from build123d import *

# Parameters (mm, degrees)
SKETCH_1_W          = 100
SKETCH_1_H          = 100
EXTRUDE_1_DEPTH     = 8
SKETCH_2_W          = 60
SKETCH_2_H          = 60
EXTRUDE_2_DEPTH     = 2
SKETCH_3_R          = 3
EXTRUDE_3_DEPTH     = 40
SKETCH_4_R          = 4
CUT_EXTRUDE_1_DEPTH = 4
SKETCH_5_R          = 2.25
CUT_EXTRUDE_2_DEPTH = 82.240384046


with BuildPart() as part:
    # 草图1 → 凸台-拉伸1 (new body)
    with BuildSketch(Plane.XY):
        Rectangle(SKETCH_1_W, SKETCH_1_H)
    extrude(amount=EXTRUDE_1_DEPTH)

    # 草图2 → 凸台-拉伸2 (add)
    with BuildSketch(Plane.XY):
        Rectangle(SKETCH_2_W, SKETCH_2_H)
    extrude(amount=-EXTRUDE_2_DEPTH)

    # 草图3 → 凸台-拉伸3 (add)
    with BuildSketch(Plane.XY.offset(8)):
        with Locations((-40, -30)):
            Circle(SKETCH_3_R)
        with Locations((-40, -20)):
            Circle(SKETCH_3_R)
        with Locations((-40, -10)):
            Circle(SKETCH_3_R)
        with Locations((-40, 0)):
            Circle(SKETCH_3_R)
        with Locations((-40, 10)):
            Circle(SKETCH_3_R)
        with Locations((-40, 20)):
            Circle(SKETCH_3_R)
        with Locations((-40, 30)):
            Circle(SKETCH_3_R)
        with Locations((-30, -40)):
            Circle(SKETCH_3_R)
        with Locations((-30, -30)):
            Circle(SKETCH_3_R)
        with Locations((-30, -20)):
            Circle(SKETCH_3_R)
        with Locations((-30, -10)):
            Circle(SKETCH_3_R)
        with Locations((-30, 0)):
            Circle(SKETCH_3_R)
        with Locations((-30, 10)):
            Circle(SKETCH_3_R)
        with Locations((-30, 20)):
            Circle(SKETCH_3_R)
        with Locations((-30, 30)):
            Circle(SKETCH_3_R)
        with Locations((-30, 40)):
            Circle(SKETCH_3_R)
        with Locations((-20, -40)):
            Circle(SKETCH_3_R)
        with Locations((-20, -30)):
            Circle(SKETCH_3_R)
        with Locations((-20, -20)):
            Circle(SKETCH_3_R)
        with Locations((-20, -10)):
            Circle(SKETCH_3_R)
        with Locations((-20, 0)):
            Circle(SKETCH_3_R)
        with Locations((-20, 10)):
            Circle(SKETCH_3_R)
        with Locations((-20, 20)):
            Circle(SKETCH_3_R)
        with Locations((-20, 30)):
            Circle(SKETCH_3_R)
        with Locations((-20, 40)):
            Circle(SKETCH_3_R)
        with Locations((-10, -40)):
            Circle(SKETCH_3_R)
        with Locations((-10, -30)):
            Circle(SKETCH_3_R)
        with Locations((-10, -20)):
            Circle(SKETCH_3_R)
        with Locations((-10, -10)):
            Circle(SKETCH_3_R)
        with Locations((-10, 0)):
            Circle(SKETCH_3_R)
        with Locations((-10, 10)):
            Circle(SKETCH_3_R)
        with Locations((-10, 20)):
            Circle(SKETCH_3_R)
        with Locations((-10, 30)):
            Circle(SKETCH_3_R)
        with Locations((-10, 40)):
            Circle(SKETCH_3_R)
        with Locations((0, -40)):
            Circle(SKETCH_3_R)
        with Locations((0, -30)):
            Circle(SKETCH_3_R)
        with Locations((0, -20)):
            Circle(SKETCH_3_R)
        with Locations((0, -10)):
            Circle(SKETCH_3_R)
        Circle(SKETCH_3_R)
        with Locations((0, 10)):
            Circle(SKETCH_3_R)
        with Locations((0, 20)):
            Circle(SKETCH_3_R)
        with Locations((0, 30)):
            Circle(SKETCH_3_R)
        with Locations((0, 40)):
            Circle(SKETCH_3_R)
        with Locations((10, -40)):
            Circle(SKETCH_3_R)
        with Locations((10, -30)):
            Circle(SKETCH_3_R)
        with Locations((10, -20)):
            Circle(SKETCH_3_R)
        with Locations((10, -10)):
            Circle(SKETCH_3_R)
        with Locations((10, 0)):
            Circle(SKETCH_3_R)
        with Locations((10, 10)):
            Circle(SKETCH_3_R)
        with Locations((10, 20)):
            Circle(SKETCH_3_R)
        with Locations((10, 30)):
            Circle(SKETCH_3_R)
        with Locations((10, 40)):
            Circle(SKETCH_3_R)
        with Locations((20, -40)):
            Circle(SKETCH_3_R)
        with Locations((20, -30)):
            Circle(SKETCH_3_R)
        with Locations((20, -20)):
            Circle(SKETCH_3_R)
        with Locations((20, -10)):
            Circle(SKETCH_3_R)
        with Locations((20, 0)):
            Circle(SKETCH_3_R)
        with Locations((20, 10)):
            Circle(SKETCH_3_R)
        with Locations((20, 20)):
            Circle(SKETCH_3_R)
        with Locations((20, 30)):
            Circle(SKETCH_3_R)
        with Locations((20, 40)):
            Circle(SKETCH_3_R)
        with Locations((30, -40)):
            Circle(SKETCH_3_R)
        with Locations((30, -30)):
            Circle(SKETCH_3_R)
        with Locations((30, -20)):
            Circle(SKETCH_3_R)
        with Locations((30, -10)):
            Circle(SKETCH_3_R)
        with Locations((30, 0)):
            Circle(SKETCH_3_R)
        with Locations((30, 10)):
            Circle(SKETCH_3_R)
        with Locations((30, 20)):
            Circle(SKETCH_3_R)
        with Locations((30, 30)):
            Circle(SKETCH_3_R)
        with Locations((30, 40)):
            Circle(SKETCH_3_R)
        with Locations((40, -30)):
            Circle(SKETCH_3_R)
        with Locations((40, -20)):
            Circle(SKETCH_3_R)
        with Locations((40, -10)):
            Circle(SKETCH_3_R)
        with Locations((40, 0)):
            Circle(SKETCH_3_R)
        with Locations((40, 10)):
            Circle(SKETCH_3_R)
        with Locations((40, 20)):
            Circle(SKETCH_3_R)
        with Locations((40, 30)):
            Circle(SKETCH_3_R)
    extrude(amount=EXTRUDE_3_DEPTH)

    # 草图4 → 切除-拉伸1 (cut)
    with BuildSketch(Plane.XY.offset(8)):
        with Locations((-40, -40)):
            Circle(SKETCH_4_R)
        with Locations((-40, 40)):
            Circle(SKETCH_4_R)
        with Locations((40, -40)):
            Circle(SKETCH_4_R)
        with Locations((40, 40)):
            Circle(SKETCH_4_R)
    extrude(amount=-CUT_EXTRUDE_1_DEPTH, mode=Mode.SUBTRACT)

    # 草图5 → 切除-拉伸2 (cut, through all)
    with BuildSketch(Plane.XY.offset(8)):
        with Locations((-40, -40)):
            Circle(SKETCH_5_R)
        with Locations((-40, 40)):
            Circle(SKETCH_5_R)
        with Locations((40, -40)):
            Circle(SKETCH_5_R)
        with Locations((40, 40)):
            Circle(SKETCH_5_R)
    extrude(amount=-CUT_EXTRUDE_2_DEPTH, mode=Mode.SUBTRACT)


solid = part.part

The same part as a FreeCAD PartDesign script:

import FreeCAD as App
import Part
import Sketcher

V = App.Vector
Q = App.Units.Quantity

doc = App.newDocument("Part")
body = doc.addObject("PartDesign::Body", "Body")

# Sketch on XY plane
sketch1 = doc.addObject("Sketcher::SketchObject", "Sketch")
body.addObject(sketch1)
sketch1.AttachmentSupport = (doc.XY_Plane, [""])
sketch1.MapMode = "FlatFace"
sketch1.addGeometry([
    Part.LineSegment(V(-50, 50, 0), V(-50, -50, 0)),
    Part.LineSegment(V(-50, -50, 0), V(50, -50, 0)),
    Part.LineSegment(V(50, -50, 0), V(50, 50, 0)),
    Part.LineSegment(V(50, 50, 0), V(-50, 50, 0)),
], False)
sketch1.addConstraint([
    Sketcher.Constraint("Coincident", 0, 2, 1, 1),
    Sketcher.Constraint("Coincident", 1, 2, 2, 1),
    Sketcher.Constraint("Coincident", 2, 2, 3, 1),
    Sketcher.Constraint("Coincident", 3, 2, 0, 1),
    Sketcher.Constraint("Vertical", 0),
    Sketcher.Constraint("Horizontal", 1),
    Sketcher.Constraint("Vertical", 2),
    Sketcher.Constraint("Horizontal", 3),
    Sketcher.Constraint("Symmetric", 0, 2, 2, 2, -1, 1),
    Sketcher.Constraint("Equal", 3, 0),
    Sketcher.Constraint("DistanceX", 1, 1, 1, 2, Q("100 mm")),
])
pad1 = doc.addObject("PartDesign::Pad", "Pad")
body.addObject(pad1)
pad1.Profile = sketch1
pad1.Length = 8

# Sketch on XY plane
sketch2 = doc.addObject("Sketcher::SketchObject", "Sketch001")
body.addObject(sketch2)
sketch2.AttachmentSupport = (doc.XY_Plane, [""])
sketch2.MapMode = "FlatFace"
sketch2.addGeometry([
    Part.LineSegment(V(-30, 30, 0), V(-30, -30, 0)),
    Part.LineSegment(V(-30, -30, 0), V(30, -30, 0)),
    Part.LineSegment(V(30, -30, 0), V(30, 30, 0)),
    Part.LineSegment(V(30, 30, 0), V(-30, 30, 0)),
], False)
sketch2.addConstraint([
    Sketcher.Constraint("Coincident", 0, 2, 1, 1),
    Sketcher.Constraint("Coincident", 1, 2, 2, 1),
    Sketcher.Constraint("Coincident", 2, 2, 3, 1),
    Sketcher.Constraint("Coincident", 3, 2, 0, 1),
    Sketcher.Constraint("Vertical", 0),
    Sketcher.Constraint("Horizontal", 1),
    Sketcher.Constraint("Vertical", 2),
    Sketcher.Constraint("Horizontal", 3),
    Sketcher.Constraint("Symmetric", 0, 2, 2, 2, -1, 1),
    Sketcher.Constraint("Equal", 3, 0),
    Sketcher.Constraint("DistanceX", 1, 1, 1, 2, Q("60 mm")),
])
pad2 = doc.addObject("PartDesign::Pad", "Pad001")
body.addObject(pad2)
pad2.Profile = sketch2
pad2.Length = 2
pad2.Reversed = True

# Sketch on XY plane
sketch3 = doc.addObject("Sketcher::SketchObject", "Sketch002")
body.addObject(sketch3)
sketch3.AttachmentSupport = (doc.XY_Plane, [""])
sketch3.MapMode = "FlatFace"
sketch3.AttachmentOffset = App.Placement(V(0, 0, 8), App.Rotation())
sketch3.addGeometry([
    Part.Circle(V(-40, -30, 0), V(0, 0, 1), 3),  # 0
    Part.Circle(V(-40, -20, 0), V(0, 0, 1), 3),  # 1
    Part.Circle(V(-40, -10, 0), V(0, 0, 1), 3),  # 2
    Part.Circle(V(-40, 0, 0), V(0, 0, 1), 3),  # 3
    Part.Circle(V(-40, 10, 0), V(0, 0, 1), 3),  # 4
    Part.Circle(V(-40, 20, 0), V(0, 0, 1), 3),  # 5
    Part.Circle(V(-40, 30, 0), V(0, 0, 1), 3),  # 6
    Part.Circle(V(-30, -40, 0), V(0, 0, 1), 3),  # 7
    Part.Circle(V(-30, -30, 0), V(0, 0, 1), 3),  # 8
    Part.Circle(V(-30, -20, 0), V(0, 0, 1), 3),  # 9
    Part.Circle(V(-30, -10, 0), V(0, 0, 1), 3),  # 10
    Part.Circle(V(-30, 0, 0), V(0, 0, 1), 3),  # 11
    Part.Circle(V(-30, 10, 0), V(0, 0, 1), 3),  # 12
    Part.Circle(V(-30, 20, 0), V(0, 0, 1), 3),  # 13
    Part.Circle(V(-30, 30, 0), V(0, 0, 1), 3),  # 14
    Part.Circle(V(-30, 40, 0), V(0, 0, 1), 3),  # 15
    Part.Circle(V(-20, -40, 0), V(0, 0, 1), 3),  # 16
    Part.Circle(V(-20, -30, 0), V(0, 0, 1), 3),  # 17
    Part.Circle(V(-20, -20, 0), V(0, 0, 1), 3),  # 18
    Part.Circle(V(-20, -10, 0), V(0, 0, 1), 3),  # 19
    Part.Circle(V(-20, 0, 0), V(0, 0, 1), 3),  # 20
    Part.Circle(V(-20, 10, 0), V(0, 0, 1), 3),  # 21
    Part.Circle(V(-20, 20, 0), V(0, 0, 1), 3),  # 22
    Part.Circle(V(-20, 30, 0), V(0, 0, 1), 3),  # 23
    Part.Circle(V(-20, 40, 0), V(0, 0, 1), 3),  # 24
    Part.Circle(V(-10, -40, 0), V(0, 0, 1), 3),  # 25
    Part.Circle(V(-10, -30, 0), V(0, 0, 1), 3),  # 26
    Part.Circle(V(-10, -20, 0), V(0, 0, 1), 3),  # 27
    Part.Circle(V(-10, -10, 0), V(0, 0, 1), 3),  # 28
    Part.Circle(V(-10, 0, 0), V(0, 0, 1), 3),  # 29
    Part.Circle(V(-10, 10, 0), V(0, 0, 1), 3),  # 30
    Part.Circle(V(-10, 20, 0), V(0, 0, 1), 3),  # 31
    Part.Circle(V(-10, 30, 0), V(0, 0, 1), 3),  # 32
    Part.Circle(V(-10, 40, 0), V(0, 0, 1), 3),  # 33
    Part.Circle(V(0, -40, 0), V(0, 0, 1), 3),  # 34
    Part.Circle(V(0, -30, 0), V(0, 0, 1), 3),  # 35
    Part.Circle(V(0, -20, 0), V(0, 0, 1), 3),  # 36
    Part.Circle(V(0, -10, 0), V(0, 0, 1), 3),  # 37
    Part.Circle(V(0, 0, 0), V(0, 0, 1), 3),  # 38
    Part.Circle(V(0, 10, 0), V(0, 0, 1), 3),  # 39
    Part.Circle(V(0, 20, 0), V(0, 0, 1), 3),  # 40
    Part.Circle(V(0, 30, 0), V(0, 0, 1), 3),  # 41
    Part.Circle(V(0, 40, 0), V(0, 0, 1), 3),  # 42
    Part.Circle(V(10, -40, 0), V(0, 0, 1), 3),  # 43
    Part.Circle(V(10, -30, 0), V(0, 0, 1), 3),  # 44
    Part.Circle(V(10, -20, 0), V(0, 0, 1), 3),  # 45
    Part.Circle(V(10, -10, 0), V(0, 0, 1), 3),  # 46
    Part.Circle(V(10, 0, 0), V(0, 0, 1), 3),  # 47
    Part.Circle(V(10, 10, 0), V(0, 0, 1), 3),  # 48
    Part.Circle(V(10, 20, 0), V(0, 0, 1), 3),  # 49
    Part.Circle(V(10, 30, 0), V(0, 0, 1), 3),  # 50
    Part.Circle(V(10, 40, 0), V(0, 0, 1), 3),  # 51
    Part.Circle(V(20, -40, 0), V(0, 0, 1), 3),  # 52
    Part.Circle(V(20, -30, 0), V(0, 0, 1), 3),  # 53
    Part.Circle(V(20, -20, 0), V(0, 0, 1), 3),  # 54
    Part.Circle(V(20, -10, 0), V(0, 0, 1), 3),  # 55
    Part.Circle(V(20, 0, 0), V(0, 0, 1), 3),  # 56
    Part.Circle(V(20, 10, 0), V(0, 0, 1), 3),  # 57
    Part.Circle(V(20, 20, 0), V(0, 0, 1), 3),  # 58
    Part.Circle(V(20, 30, 0), V(0, 0, 1), 3),  # 59
    Part.Circle(V(20, 40, 0), V(0, 0, 1), 3),  # 60
    Part.Circle(V(30, -40, 0), V(0, 0, 1), 3),  # 61
    Part.Circle(V(30, -30, 0), V(0, 0, 1), 3),  # 62
    Part.Circle(V(30, -20, 0), V(0, 0, 1), 3),  # 63
    Part.Circle(V(30, -10, 0), V(0, 0, 1), 3),  # 64
    Part.Circle(V(30, 0, 0), V(0, 0, 1), 3),  # 65
    Part.Circle(V(30, 10, 0), V(0, 0, 1), 3),  # 66
    Part.Circle(V(30, 20, 0), V(0, 0, 1), 3),  # 67
    Part.Circle(V(30, 30, 0), V(0, 0, 1), 3),  # 68
    Part.Circle(V(30, 40, 0), V(0, 0, 1), 3),  # 69
    Part.Circle(V(40, -30, 0), V(0, 0, 1), 3),  # 70
    Part.Circle(V(40, -20, 0), V(0, 0, 1), 3),  # 71
    Part.Circle(V(40, -10, 0), V(0, 0, 1), 3),  # 72
    Part.Circle(V(40, 0, 0), V(0, 0, 1), 3),  # 73
    Part.Circle(V(40, 10, 0), V(0, 0, 1), 3),  # 74
    Part.Circle(V(40, 20, 0), V(0, 0, 1), 3),  # 75
    Part.Circle(V(40, 30, 0), V(0, 0, 1), 3),  # 76
], False)
sketch3.addConstraint([
    Sketcher.Constraint("Coincident", 38, 3, -1, 1),
    Sketcher.Constraint("Equal", 0, 1),
    Sketcher.Constraint("Equal", 1, 2),
    Sketcher.Constraint("Equal", 2, 3),
    Sketcher.Constraint("Equal", 3, 4),
    Sketcher.Constraint("Equal", 4, 5),
    Sketcher.Constraint("Equal", 5, 6),
    Sketcher.Constraint("Equal", 6, 7),
    Sketcher.Constraint("Equal", 7, 8),
    Sketcher.Constraint("Equal", 8, 9),
    Sketcher.Constraint("Equal", 9, 10),
    Sketcher.Constraint("Equal", 10, 11),
    Sketcher.Constraint("Equal", 11, 12),
    Sketcher.Constraint("Equal", 12, 13),
    Sketcher.Constraint("Equal", 13, 14),
    Sketcher.Constraint("Equal", 14, 15),
    Sketcher.Constraint("Equal", 15, 16),
    Sketcher.Constraint("Equal", 16, 17),
    Sketcher.Constraint("Equal", 17, 18),
    Sketcher.Constraint("Equal", 18, 19),
    Sketcher.Constraint("Equal", 19, 20),
    Sketcher.Constraint("Equal", 20, 21),
    Sketcher.Constraint("Equal", 21, 22),
    Sketcher.Constraint("Equal", 22, 23),
    Sketcher.Constraint("Equal", 23, 24),
    Sketcher.Constraint("Equal", 24, 25),
    Sketcher.Constraint("Equal", 25, 26),
    Sketcher.Constraint("Equal", 26, 27),
    Sketcher.Constraint("Equal", 27, 28),
    Sketcher.Constraint("Equal", 28, 29),
    Sketcher.Constraint("Equal", 29, 30),
    Sketcher.Constraint("Equal", 30, 31),
    Sketcher.Constraint("Equal", 31, 32),
    Sketcher.Constraint("Equal", 32, 33),
    Sketcher.Constraint("Equal", 33, 34),
    Sketcher.Constraint("Equal", 34, 35),
    Sketcher.Constraint("Equal", 35, 36),
    Sketcher.Constraint("Equal", 36, 37),
    Sketcher.Constraint("Equal", 37, 38),
    Sketcher.Constraint("Equal", 38, 39),
    Sketcher.Constraint("Equal", 39, 40),
    Sketcher.Constraint("Equal", 40, 41),
    Sketcher.Constraint("Equal", 41, 42),
    Sketcher.Constraint("Equal", 42, 43),
    Sketcher.Constraint("Equal", 43, 44),
    Sketcher.Constraint("Equal", 44, 45),
    Sketcher.Constraint("Equal", 45, 46),
    Sketcher.Constraint("Equal", 46, 47),
    Sketcher.Constraint("Equal", 47, 48),
    Sketcher.Constraint("Equal", 48, 49),
    Sketcher.Constraint("Equal", 49, 50),
    Sketcher.Constraint("Equal", 50, 51),
    Sketcher.Constraint("Equal", 51, 52),
    Sketcher.Constraint("Equal", 52, 53),
    Sketcher.Constraint("Equal", 53, 54),
    Sketcher.Constraint("Equal", 54, 55),
    Sketcher.Constraint("Equal", 55, 56),
    Sketcher.Constraint("Equal", 56, 57),
    Sketcher.Constraint("Equal", 57, 58),
    Sketcher.Constraint("Equal", 58, 59),
    Sketcher.Constraint("Equal", 59, 60),
    Sketcher.Constraint("Equal", 60, 61),
    Sketcher.Constraint("Equal", 61, 62),
    Sketcher.Constraint("Equal", 62, 63),
    Sketcher.Constraint("Equal", 63, 64),
    Sketcher.Constraint("Equal", 64, 65),
    Sketcher.Constraint("Equal", 65, 66),
    Sketcher.Constraint("Equal", 66, 67),
    Sketcher.Constraint("Equal", 67, 68),
    Sketcher.Constraint("Equal", 68, 69),
    Sketcher.Constraint("Equal", 69, 70),
    Sketcher.Constraint("Equal", 70, 71),
    Sketcher.Constraint("Equal", 71, 72),
    Sketcher.Constraint("Equal", 72, 73),
    Sketcher.Constraint("Equal", 73, 74),
    Sketcher.Constraint("Equal", 74, 75),
    Sketcher.Constraint("Equal", 75, 76),
    Sketcher.Constraint("Symmetric", 37, 3, 39, 3, -1, 1),
    Sketcher.Constraint("Symmetric", 36, 3, 40, 3, -1, 1),
    Sketcher.Constraint("Symmetric", 35, 3, 41, 3, -1, 1),
    Sketcher.Constraint("Symmetric", 34, 3, 42, 3, -1, 1),
    Sketcher.Constraint("Symmetric", 33, 3, 43, 3, -1, 1),
    Sketcher.Constraint("Symmetric", 32, 3, 44, 3, -1, 1),
    Sketcher.Constraint("Symmetric", 31, 3, 45, 3, -1, 1),
    Sketcher.Constraint("Symmetric", 30, 3, 46, 3, -1, 1),
    Sketcher.Constraint("Symmetric", 29, 3, 47, 3, -1, 1),
    Sketcher.Constraint("Symmetric", 28, 3, 48, 3, -1, 1),
    Sketcher.Constraint("Symmetric", 27, 3, 49, 3, -1, 1),
    Sketcher.Constraint("Symmetric", 26, 3, 50, 3, -1, 1),
    Sketcher.Constraint("Symmetric", 25, 3, 51, 3, -1, 1),
    Sketcher.Constraint("Symmetric", 24, 3, 52, 3, -1, 1),
    Sketcher.Constraint("Symmetric", 23, 3, 53, 3, -1, 1),
    Sketcher.Constraint("Symmetric", 22, 3, 54, 3, -1, 1),
    Sketcher.Constraint("Symmetric", 21, 3, 55, 3, -1, 1),
    Sketcher.Constraint("Symmetric", 20, 3, 56, 3, -1, 1),
    Sketcher.Constraint("Symmetric", 19, 3, 57, 3, -1, 1),
    Sketcher.Constraint("Symmetric", 18, 3, 58, 3, -1, 1),
    Sketcher.Constraint("Symmetric", 17, 3, 59, 3, -1, 1),
    Sketcher.Constraint("Symmetric", 16, 3, 60, 3, -1, 1),
    Sketcher.Constraint("Symmetric", 15, 3, 61, 3, -1, 1),
    Sketcher.Constraint("Symmetric", 14, 3, 62, 3, -1, 1),
    Sketcher.Constraint("Symmetric", 13, 3, 63, 3, -1, 1),
    Sketcher.Constraint("Symmetric", 12, 3, 64, 3, -1, 1),
    Sketcher.Constraint("Symmetric", 11, 3, 65, 3, -1, 1),
    Sketcher.Constraint("Symmetric", 10, 3, 66, 3, -1, 1),
    Sketcher.Constraint("Symmetric", 9, 3, 67, 3, -1, 1),
    Sketcher.Constraint("Symmetric", 8, 3, 68, 3, -1, 1),
    Sketcher.Constraint("Symmetric", 7, 3, 69, 3, -1, 1),
    Sketcher.Constraint("Symmetric", 6, 3, 70, 3, -1, 1),
    Sketcher.Constraint("Symmetric", 5, 3, 71, 3, -1, 1),
    Sketcher.Constraint("Symmetric", 4, 3, 72, 3, -1, 1),
    Sketcher.Constraint("Symmetric", 3, 3, 73, 3, -1, 1),
    Sketcher.Constraint("Symmetric", 2, 3, 74, 3, -1, 1),
    Sketcher.Constraint("Symmetric", 1, 3, 75, 3, -1, 1),
    Sketcher.Constraint("Symmetric", 0, 3, 76, 3, -1, 1),
    Sketcher.Constraint("Symmetric", 25, 3, 43, 3, -2),
    Sketcher.Constraint("Symmetric", 26, 3, 44, 3, -2),
    Sketcher.Constraint("Symmetric", 27, 3, 45, 3, -2),
    Sketcher.Constraint("Symmetric", 28, 3, 46, 3, -2),
    Sketcher.Constraint("Symmetric", 16, 3, 52, 3, -2),
    Sketcher.Constraint("Symmetric", 17, 3, 53, 3, -2),
    Sketcher.Constraint("Symmetric", 18, 3, 54, 3, -2),
    Sketcher.Constraint("Symmetric", 19, 3, 55, 3, -2),
    Sketcher.Constraint("Symmetric", 7, 3, 61, 3, -2),
    Sketcher.Constraint("Symmetric", 8, 3, 62, 3, -2),
    Sketcher.Constraint("Symmetric", 9, 3, 63, 3, -2),
    Sketcher.Constraint("Symmetric", 10, 3, 64, 3, -2),
    Sketcher.Constraint("Symmetric", 0, 3, 70, 3, -2),
    Sketcher.Constraint("Symmetric", 1, 3, 71, 3, -2),
    Sketcher.Constraint("Symmetric", 2, 3, 72, 3, -2),
    Sketcher.Constraint("PointOnObject", 3, 3, -1),
    Sketcher.Constraint("PointOnObject", 11, 3, -1),
    Sketcher.Constraint("PointOnObject", 20, 3, -1),
    Sketcher.Constraint("PointOnObject", 29, 3, -1),
    Sketcher.Constraint("PointOnObject", 34, 3, -2),
    Sketcher.Constraint("PointOnObject", 35, 3, -2),
    Sketcher.Constraint("PointOnObject", 36, 3, -2),
    Sketcher.Constraint("PointOnObject", 37, 3, -2),
    Sketcher.Constraint("Horizontal", 0, 3, 8, 3),
    Sketcher.Constraint("Horizontal", 1, 3, 9, 3),
    Sketcher.Constraint("Horizontal", 2, 3, 10, 3),
    Sketcher.Constraint("Horizontal", 7, 3, 16, 3),
    Sketcher.Constraint("Horizontal", 8, 3, 17, 3),
    Sketcher.Constraint("Horizontal", 9, 3, 18, 3),
    Sketcher.Constraint("Horizontal", 10, 3, 19, 3),
    Sketcher.Constraint("Horizontal", 16, 3, 25, 3),
    Sketcher.Constraint("Horizontal", 17, 3, 26, 3),
    Sketcher.Constraint("Horizontal", 18, 3, 27, 3),
    Sketcher.Constraint("Horizontal", 19, 3, 28, 3),
    Sketcher.Constraint("Horizontal", 25, 3, 34, 3),
    Sketcher.Constraint("Horizontal", 26, 3, 35, 3),
    Sketcher.Constraint("Horizontal", 27, 3, 36, 3),
    Sketcher.Constraint("Horizontal", 28, 3, 37, 3),
    Sketcher.Constraint("Vertical", 0, 3, 1, 3),
    Sketcher.Constraint("Vertical", 1, 3, 2, 3),
    Sketcher.Constraint("Vertical", 2, 3, 3, 3),
    Sketcher.Constraint("Vertical", 7, 3, 8, 3),
    Sketcher.Constraint("Vertical", 8, 3, 9, 3),
    Sketcher.Constraint("Vertical", 9, 3, 10, 3),
    Sketcher.Constraint("Vertical", 10, 3, 11, 3),
    Sketcher.Constraint("Vertical", 16, 3, 17, 3),
    Sketcher.Constraint("Vertical", 17, 3, 18, 3),
    Sketcher.Constraint("Vertical", 18, 3, 19, 3),
    Sketcher.Constraint("Vertical", 19, 3, 20, 3),
    Sketcher.Constraint("Vertical", 25, 3, 26, 3),
    Sketcher.Constraint("Vertical", 26, 3, 27, 3),
    Sketcher.Constraint("Vertical", 27, 3, 28, 3),
    Sketcher.Constraint("Vertical", 28, 3, 29, 3),
    Sketcher.Constraint("Diameter", 0, Q("6 mm")),
    Sketcher.Constraint("DistanceX", 0, 3, -1, 1, Q("40 mm")),
    Sketcher.Constraint("DistanceY", 0, 3, -1, 1, Q("30 mm")),
    Sketcher.Constraint("DistanceY", 1, 3, -1, 1, Q("20 mm")),
    Sketcher.Constraint("DistanceY", 2, 3, -1, 1, Q("10 mm")),
    Sketcher.Constraint("DistanceX", 7, 3, -1, 1, Q("30 mm")),
    Sketcher.Constraint("DistanceY", 7, 3, -1, 1, Q("40 mm")),
    Sketcher.Constraint("DistanceX", 16, 3, -1, 1, Q("20 mm")),
    Sketcher.Constraint("DistanceX", 25, 3, -1, 1, Q("10 mm")),
])
pad3 = doc.addObject("PartDesign::Pad", "Pad002")
body.addObject(pad3)
pad3.Profile = sketch3
pad3.Length = 40

# Sketch on XY plane
sketch4 = doc.addObject("Sketcher::SketchObject", "Sketch003")
body.addObject(sketch4)
sketch4.AttachmentSupport = (doc.XY_Plane, [""])
sketch4.MapMode = "FlatFace"
sketch4.AttachmentOffset = App.Placement(V(0, 0, 8), App.Rotation())
sketch4.addGeometry([
    Part.Circle(V(-40, -40, 0), V(0, 0, 1), 4),
    Part.Circle(V(-40, 40, 0), V(0, 0, 1), 4),
    Part.Circle(V(40, -40, 0), V(0, 0, 1), 4),
    Part.Circle(V(40, 40, 0), V(0, 0, 1), 4),
], False)
sketch4.addConstraint([
    Sketcher.Constraint("Equal", 0, 1),
    Sketcher.Constraint("Equal", 1, 2),
    Sketcher.Constraint("Equal", 2, 3),
    Sketcher.Constraint("Symmetric", 1, 3, 2, 3, -1, 1),
    Sketcher.Constraint("Symmetric", 0, 3, 3, 3, -1, 1),
    Sketcher.Constraint("Symmetric", 0, 3, 2, 3, -2),
    Sketcher.Constraint("Diameter", 0, Q("8 mm")),
    Sketcher.Constraint("DistanceX", 0, 3, -1, 1, Q("40 mm")),
    Sketcher.Constraint("DistanceY", 0, 3, -1, 1, Q("40 mm")),
])
pocket1 = doc.addObject("PartDesign::Pocket", "Pocket")
body.addObject(pocket1)
pocket1.Profile = sketch4
pocket1.Length = 4

# Sketch on XY plane
sketch5 = doc.addObject("Sketcher::SketchObject", "Sketch004")
body.addObject(sketch5)
sketch5.AttachmentSupport = (doc.XY_Plane, [""])
sketch5.MapMode = "FlatFace"
sketch5.AttachmentOffset = App.Placement(V(0, 0, 8), App.Rotation())
sketch5.addGeometry([
    Part.Circle(V(-40, -40, 0), V(0, 0, 1), 2.25),
    Part.Circle(V(-40, 40, 0), V(0, 0, 1), 2.25),
    Part.Circle(V(40, -40, 0), V(0, 0, 1), 2.25),
    Part.Circle(V(40, 40, 0), V(0, 0, 1), 2.25),
], False)
sketch5.addConstraint([
    Sketcher.Constraint("Equal", 0, 1),
    Sketcher.Constraint("Equal", 1, 2),
    Sketcher.Constraint("Equal", 2, 3),
    Sketcher.Constraint("Symmetric", 1, 3, 2, 3, -1, 1),
    Sketcher.Constraint("Symmetric", 0, 3, 3, 3, -1, 1),
    Sketcher.Constraint("Symmetric", 0, 3, 2, 3, -2),
    Sketcher.Constraint("Diameter", 0, Q("4.5 mm")),
    Sketcher.Constraint("DistanceX", 0, 3, -1, 1, Q("40 mm")),
    Sketcher.Constraint("DistanceY", 0, 3, -1, 1, Q("40 mm")),
])
pocket2 = doc.addObject("PartDesign::Pocket", "Pocket001")
body.addObject(pocket2)
pocket2.Profile = sketch5
pocket2.Type = "ThroughAll"

doc.recompute()
